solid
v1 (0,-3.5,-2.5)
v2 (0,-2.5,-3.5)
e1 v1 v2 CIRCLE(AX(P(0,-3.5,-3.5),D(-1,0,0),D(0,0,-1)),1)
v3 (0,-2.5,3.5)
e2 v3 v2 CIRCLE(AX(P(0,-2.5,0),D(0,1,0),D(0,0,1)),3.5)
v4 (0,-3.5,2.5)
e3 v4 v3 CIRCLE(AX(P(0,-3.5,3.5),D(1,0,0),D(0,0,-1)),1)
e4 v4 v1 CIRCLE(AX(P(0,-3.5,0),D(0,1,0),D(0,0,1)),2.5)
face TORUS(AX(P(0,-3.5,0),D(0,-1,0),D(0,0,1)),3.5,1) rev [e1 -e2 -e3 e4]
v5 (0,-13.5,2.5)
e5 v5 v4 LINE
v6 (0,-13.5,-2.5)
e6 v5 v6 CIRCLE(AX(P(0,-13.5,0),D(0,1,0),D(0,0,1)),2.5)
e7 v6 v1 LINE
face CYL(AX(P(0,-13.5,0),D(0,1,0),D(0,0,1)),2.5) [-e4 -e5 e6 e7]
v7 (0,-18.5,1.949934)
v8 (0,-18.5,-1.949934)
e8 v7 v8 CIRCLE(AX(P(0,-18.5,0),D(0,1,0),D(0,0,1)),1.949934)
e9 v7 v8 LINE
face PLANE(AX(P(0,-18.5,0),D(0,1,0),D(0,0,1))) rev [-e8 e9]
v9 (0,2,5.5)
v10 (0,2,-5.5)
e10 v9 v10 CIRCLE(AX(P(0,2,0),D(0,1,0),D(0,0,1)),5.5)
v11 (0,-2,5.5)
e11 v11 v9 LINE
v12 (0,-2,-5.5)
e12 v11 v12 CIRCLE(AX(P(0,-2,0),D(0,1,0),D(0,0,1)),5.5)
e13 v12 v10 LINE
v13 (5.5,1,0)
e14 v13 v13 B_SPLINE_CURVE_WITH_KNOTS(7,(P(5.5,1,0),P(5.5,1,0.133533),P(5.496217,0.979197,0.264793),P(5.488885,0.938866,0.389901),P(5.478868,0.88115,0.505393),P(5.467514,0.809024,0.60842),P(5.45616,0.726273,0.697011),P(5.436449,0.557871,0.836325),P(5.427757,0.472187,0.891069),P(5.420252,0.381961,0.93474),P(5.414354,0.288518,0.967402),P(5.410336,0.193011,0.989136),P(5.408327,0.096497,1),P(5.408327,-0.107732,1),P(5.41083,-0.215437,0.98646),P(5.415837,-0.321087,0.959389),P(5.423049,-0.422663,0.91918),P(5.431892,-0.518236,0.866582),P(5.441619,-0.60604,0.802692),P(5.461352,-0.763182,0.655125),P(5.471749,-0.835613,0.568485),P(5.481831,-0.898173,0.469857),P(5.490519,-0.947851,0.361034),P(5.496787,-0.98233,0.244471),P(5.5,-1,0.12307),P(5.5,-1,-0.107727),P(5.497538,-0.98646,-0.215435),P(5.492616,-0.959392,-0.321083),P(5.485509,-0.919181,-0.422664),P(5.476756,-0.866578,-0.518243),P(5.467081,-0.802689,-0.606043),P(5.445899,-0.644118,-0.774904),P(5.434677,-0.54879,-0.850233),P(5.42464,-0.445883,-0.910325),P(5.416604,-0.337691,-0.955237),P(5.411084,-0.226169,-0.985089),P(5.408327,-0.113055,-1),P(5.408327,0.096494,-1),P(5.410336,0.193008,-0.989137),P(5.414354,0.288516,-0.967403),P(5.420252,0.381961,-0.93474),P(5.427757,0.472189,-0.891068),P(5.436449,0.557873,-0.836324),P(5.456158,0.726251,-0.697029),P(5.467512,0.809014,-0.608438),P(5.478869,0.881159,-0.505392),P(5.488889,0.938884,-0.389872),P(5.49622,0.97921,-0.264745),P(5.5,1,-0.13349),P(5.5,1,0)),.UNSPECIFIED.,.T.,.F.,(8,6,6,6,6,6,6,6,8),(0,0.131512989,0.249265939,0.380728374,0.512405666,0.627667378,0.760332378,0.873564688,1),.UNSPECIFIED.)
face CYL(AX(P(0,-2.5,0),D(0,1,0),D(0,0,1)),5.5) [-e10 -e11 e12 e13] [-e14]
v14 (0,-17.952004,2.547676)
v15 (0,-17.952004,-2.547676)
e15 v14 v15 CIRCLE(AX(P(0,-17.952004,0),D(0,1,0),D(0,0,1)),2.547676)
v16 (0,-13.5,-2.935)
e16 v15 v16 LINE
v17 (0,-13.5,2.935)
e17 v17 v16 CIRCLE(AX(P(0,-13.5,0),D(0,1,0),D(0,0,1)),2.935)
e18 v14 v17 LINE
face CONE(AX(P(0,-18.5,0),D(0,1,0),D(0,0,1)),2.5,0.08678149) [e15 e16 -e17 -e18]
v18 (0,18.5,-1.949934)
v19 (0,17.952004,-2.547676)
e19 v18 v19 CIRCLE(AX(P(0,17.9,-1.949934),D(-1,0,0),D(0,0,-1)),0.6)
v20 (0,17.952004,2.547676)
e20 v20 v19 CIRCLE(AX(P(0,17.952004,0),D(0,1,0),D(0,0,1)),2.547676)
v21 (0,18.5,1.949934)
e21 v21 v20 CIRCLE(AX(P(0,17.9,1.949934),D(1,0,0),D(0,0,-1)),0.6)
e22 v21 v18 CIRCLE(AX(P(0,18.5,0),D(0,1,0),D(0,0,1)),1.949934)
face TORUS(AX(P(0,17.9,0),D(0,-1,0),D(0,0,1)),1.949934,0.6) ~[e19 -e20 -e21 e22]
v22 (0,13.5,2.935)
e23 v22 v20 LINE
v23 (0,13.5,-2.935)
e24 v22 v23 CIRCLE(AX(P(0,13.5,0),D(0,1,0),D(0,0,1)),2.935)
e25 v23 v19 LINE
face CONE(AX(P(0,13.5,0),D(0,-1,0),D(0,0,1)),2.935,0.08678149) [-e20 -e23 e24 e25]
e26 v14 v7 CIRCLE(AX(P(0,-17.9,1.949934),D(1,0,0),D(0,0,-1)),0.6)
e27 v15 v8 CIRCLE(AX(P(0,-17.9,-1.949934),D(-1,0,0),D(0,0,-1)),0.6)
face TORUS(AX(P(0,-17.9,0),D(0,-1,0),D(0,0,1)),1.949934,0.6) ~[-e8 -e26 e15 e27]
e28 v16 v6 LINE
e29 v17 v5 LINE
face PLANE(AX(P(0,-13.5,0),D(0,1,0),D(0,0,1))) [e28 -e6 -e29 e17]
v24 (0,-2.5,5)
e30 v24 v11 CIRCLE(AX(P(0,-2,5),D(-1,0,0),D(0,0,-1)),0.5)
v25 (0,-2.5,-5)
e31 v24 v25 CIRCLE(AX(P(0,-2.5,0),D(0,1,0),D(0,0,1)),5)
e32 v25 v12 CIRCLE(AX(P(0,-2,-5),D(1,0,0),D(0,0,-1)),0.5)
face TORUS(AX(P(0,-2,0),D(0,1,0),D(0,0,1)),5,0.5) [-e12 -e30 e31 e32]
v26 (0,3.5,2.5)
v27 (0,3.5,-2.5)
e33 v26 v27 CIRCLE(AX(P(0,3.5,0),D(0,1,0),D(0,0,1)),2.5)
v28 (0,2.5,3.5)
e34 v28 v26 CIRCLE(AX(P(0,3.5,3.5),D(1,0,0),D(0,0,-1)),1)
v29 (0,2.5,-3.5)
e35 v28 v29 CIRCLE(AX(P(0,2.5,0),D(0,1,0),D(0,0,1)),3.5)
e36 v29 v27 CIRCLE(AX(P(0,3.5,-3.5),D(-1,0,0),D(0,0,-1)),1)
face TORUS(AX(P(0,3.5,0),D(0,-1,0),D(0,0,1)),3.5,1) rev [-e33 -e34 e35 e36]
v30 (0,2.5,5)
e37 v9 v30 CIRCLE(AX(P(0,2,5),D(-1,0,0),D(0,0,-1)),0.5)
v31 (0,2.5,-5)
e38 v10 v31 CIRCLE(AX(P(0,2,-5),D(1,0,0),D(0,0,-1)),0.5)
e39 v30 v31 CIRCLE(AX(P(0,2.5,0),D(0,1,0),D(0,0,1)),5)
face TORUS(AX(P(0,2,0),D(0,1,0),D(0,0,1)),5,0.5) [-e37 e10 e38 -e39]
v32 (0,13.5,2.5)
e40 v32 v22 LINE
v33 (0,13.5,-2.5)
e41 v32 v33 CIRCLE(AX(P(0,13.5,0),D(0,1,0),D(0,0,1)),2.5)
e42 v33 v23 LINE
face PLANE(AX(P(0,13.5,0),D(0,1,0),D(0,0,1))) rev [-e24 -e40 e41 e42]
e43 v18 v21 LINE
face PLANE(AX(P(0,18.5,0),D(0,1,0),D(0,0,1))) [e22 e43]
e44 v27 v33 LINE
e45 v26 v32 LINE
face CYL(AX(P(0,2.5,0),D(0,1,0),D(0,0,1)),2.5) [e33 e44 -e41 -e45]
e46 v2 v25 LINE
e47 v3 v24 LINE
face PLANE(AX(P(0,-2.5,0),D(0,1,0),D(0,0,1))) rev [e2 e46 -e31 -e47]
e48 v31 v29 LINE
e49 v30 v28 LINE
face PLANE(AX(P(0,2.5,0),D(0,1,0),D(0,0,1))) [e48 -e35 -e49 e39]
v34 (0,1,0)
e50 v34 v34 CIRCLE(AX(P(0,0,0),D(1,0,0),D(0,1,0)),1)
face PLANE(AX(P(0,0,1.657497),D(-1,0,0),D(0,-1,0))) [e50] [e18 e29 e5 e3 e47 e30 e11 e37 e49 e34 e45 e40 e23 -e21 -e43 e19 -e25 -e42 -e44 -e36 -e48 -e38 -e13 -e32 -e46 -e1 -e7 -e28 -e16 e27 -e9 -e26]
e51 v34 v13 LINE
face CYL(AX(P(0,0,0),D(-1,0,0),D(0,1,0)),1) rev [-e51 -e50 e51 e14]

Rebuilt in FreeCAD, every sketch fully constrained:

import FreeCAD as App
import Part
import Sketcher
from FreeCAD import Vector
Q = App.Units.Quantity


def edges_at(feature, points):
    """Names of the edges that pass closest to the given points."""
    edges = feature.Shape.Edges
    near = lambda p: min(range(len(edges)), key=lambda i: edges[i].distToShape(Part.Vertex(*p))[0])
    return sorted({f"Edge{near(p) + 1}" for p in points})


def add_polygon(sketch, points):
    """Adds a closed chain of lines whose ends are joined by coincident constraints."""
    first, n = sketch.GeometryCount, len(points)
    for a, b in zip(points, points[1:] + points[:1]):
        sketch.addGeometry(Part.LineSegment(App.Vector(*a, 0), App.Vector(*b, 0)), False)
    for i in range(n):
        sketch.addConstraint(Sketcher.Constraint("Coincident", first + i, 2, first + (i + 1) % n, 1))

doc = App.newDocument("Part")
params = doc.addObject("Spreadsheet::Sheet", "Params")
for row, (alias, value) in enumerate([
    ("sketch1_width", "37 mm"),
    ("sketch1_width2", "11 mm"),
    ("sketch1_width3", "5 mm"),
    ("sketch1_height", "3 mm"),
    ("sketch1_height2", "2.5 mm"),
    ("revolution_angle", "180 deg"),
    ("fillet_radius", "0.6 mm"),
    ("fillet2_radius", "1 mm"),
    ("fillet3_radius", "0.5 mm"),
    ("sketch2_diameter", "2 mm"),
], start=1):
    params.set(f"A{row}", alias)
    params.set(f"B{row}", "=" + value)
    params.setAlias(f"B{row}", alias)

body = doc.addObject("PartDesign::Body", "Body")

# Sketch on YZ plane
sketch1 = doc.addObject("Sketcher::SketchObject", "Sketch")
body.addObject(sketch1)
sketch1.AttachmentSupport = (doc.YZ_Plane, [""])
sketch1.MapMode = "FlatFace"
add_polygon(sketch1, [(-13.5, 2.94), (-18.5, 2.5), (-18.5, 0), (18.5, 0), (18.5, 2.5), (13.5, 2.94), (13.5, 2.5), (2.5, 2.5), (2.5, 5.5), (-2.5, 5.5), (-2.5, 2.5), (-13.5, 2.5)])  # lines 0-11
sketch1.addConstraint(Sketcher.Constraint("Vertical", 1))
sketch1.addConstraint(Sketcher.Constraint("Horizontal", 2))
sketch1.addConstraint(Sketcher.Constraint("Vertical", 3))
sketch1.addConstraint(Sketcher.Constraint("Vertical", 5))
sketch1.addConstraint(Sketcher.Constraint("Horizontal", 6))
sketch1.addConstraint(Sketcher.Constraint("Vertical", 7))
sketch1.addConstraint(Sketcher.Constraint("Horizontal", 8))
sketch1.addConstraint(Sketcher.Constraint("Vertical", 9))
sketch1.addConstraint(Sketcher.Constraint("Horizontal", 10))
sketch1.addConstraint(Sketcher.Constraint("Vertical", 11))
sketch1.addConstraint(Sketcher.Constraint("Symmetric", 1, 2, 2, 2, -1, 1))
sketch1.addConstraint(Sketcher.Constraint("Symmetric", 6, 2, 9, 2, -2))
sketch1.addConstraint(Sketcher.Constraint("Symmetric", 4, 2, 11, 2, -2))
sketch1.addConstraint(Sketcher.Constraint("Horizontal", 0, 2, 3, 2))
sketch1.addConstraint(Sketcher.Constraint("Horizontal", 3, 2, 5, 2))
sketch1.addConstraint(Sketcher.Constraint("DistanceX", 2, 1, 2, 2, Q("37 mm")))
sketch1.addConstraint(Sketcher.Constraint("DistanceX", 6, 2, 6, 1, Q("11 mm")))
sketch1.addConstraint(Sketcher.Constraint("DistanceX", 8, 2, 8, 1, Q("5 mm")))
sketch1.addConstraint(Sketcher.Constraint("DistanceY", 7, 1, 7, 2, Q("3 mm")))
sketch1.addConstraint(Sketcher.Constraint("DistanceY", 1, 2, 1, 1, Q("2.5 mm")))
sketch1.addConstraint(Sketcher.Constraint("DistanceY", 5, 2, 5, 1, Q("0.435 mm")))
sketch1.setExpression("Constraints[27]", "Params.sketch1_width")
sketch1.setExpression("Constraints[28]", "Params.sketch1_width2")
sketch1.setExpression("Constraints[29]", "Params.sketch1_width3")
sketch1.setExpression("Constraints[30]", "Params.sketch1_height")
sketch1.setExpression("Constraints[31]", "Params.sketch1_height2")
revolution = doc.addObject("PartDesign::Revolution", "Revolution")
body.addObject(revolution)
revolution.Profile = sketch1
revolution.ReferenceAxis = (sketch1, ["H_Axis"])
revolution.setExpression("Angle", "Params.revolution_angle")
doc.recompute()

fillet = doc.addObject("PartDesign::Fillet", "Fillet")
body.addObject(fillet)
fillet.Base = (revolution, edges_at(revolution, [(2.5, -18.5, 0), (2.5, 18.5, 0)]))
fillet.setExpression("Radius", "Params.fillet_radius")
doc.recompute()

fillet2 = doc.addObject("PartDesign::Fillet", "Fillet001")
body.addObject(fillet2)
fillet2.Base = (fillet, edges_at(fillet, [(2.5, -2.5, 0), (2.5, 2.5, 0)]))
fillet2.setExpression("Radius", "Params.fillet2_radius")
doc.recompute()

fillet3 = doc.addObject("PartDesign::Fillet", "Fillet002")
body.addObject(fillet3)
fillet3.Base = (fillet2, edges_at(fillet2, [(5.5, -2.5, 0), (5.5, 2.5, 0)]))
fillet3.setExpression("Radius", "Params.fillet3_radius")

# Sketch on YZ plane
sketch2 = doc.addObject("Sketcher::SketchObject", "Sketch001")
body.addObject(sketch2)
sketch2.AttachmentSupport = (doc.YZ_Plane, [""])
sketch2.MapMode = "FlatFace"
sketch2.addGeometry(Part.Circle(Vector(0, 0, 0), Vector(0, 0, 1), 1), False)
sketch2.addConstraint(Sketcher.Constraint("Coincident", 0, 3, -1, 1))
sketch2.addConstraint(Sketcher.Constraint("Diameter", 0, Q("2 mm")))
sketch2.setExpression("Constraints[1]", "Params.sketch2_diameter")
pocket1 = doc.addObject("PartDesign::Pocket", "Pocket")
body.addObject(pocket1)
pocket1.Profile = sketch2
pocket1.Type = "ThroughAll"
pocket1.Midplane = True

doc.recompute()
